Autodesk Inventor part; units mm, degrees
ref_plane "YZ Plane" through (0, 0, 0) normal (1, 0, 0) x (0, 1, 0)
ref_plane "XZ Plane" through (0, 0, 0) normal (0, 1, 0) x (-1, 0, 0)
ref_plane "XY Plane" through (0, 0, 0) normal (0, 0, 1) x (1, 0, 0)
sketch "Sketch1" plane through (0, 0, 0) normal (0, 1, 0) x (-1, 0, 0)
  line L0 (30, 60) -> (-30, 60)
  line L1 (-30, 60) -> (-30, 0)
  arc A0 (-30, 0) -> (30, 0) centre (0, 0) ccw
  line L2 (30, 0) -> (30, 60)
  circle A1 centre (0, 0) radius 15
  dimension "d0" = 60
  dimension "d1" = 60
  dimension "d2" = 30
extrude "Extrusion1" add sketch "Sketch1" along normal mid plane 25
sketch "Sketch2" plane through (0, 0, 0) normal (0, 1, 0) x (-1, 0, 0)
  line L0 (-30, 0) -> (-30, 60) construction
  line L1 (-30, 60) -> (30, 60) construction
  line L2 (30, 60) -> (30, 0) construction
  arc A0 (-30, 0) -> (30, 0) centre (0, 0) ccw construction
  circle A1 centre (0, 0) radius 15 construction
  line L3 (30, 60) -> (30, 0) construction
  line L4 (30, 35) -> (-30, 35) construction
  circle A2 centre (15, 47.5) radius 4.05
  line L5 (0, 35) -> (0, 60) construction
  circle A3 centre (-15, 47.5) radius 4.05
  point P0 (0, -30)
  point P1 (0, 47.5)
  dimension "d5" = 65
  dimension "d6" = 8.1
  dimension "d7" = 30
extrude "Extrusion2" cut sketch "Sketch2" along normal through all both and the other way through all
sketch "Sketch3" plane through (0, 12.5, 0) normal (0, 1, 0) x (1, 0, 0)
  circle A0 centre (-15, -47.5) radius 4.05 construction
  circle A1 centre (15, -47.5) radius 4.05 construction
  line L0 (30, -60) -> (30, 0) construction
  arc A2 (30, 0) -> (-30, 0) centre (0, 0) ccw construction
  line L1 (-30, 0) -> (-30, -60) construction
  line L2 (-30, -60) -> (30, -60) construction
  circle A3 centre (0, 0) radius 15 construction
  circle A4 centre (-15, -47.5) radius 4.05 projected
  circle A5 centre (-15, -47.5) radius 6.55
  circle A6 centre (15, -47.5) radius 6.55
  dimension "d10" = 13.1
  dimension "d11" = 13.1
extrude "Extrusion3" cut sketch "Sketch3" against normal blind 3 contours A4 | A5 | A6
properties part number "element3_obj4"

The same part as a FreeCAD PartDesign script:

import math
import FreeCAD as App
import Part
import Sketcher
from FreeCAD import Vector

doc = App.newDocument("Part")
body = doc.addObject("PartDesign::Body", "Body")

sketch1 = body.newObject("Sketcher::SketchObject", "Sketch")
sketch1.AttachmentSupport = (doc.getObject("XZ_Plane"), [""])
sketch1.MapMode = "FlatFace"
sketch1.addGeometry(Part.LineSegment(Vector(-30, 0, 0), Vector(-30, 60, 0)), False)
sketch1.addGeometry(Part.LineSegment(Vector(-30, 60, 0), Vector(30, 60, 0)), False)
sketch1.addGeometry(Part.LineSegment(Vector(30, 60, 0), Vector(30, 0, 0)), False)
sketch1.addGeometry(Part.ArcOfCircle(Part.Circle(Vector(0, 0, 0), Vector(0, 0, 1), 30), math.radians(180), math.radians(360)), False)
sketch1.addGeometry(Part.Circle(Vector(0, 0, 0), Vector(0, 0, 1), 15), False)
sketch1.addConstraint(Sketcher.Constraint("Coincident", 0, 2, 1, 1))
sketch1.addConstraint(Sketcher.Constraint("Coincident", 1, 2, 2, 1))
sketch1.addConstraint(Sketcher.Constraint("Tangent", 2, 2, 3, 2))
sketch1.addConstraint(Sketcher.Constraint("Tangent", 3, 1, 0, 1))
sketch1.addConstraint(Sketcher.Constraint("Vertical", 0))
sketch1.addConstraint(Sketcher.Constraint("Horizontal", 1))
sketch1.addConstraint(Sketcher.Constraint("Vertical", 2))
sketch1.addConstraint(Sketcher.Constraint("Coincident", 3, 3, -1, 1))
sketch1.addConstraint(Sketcher.Constraint("Coincident", 4, 3, -1, 1))
sketch1.addConstraint(Sketcher.Constraint("Equal", 1, 0))
sketch1.addConstraint(Sketcher.Constraint("Diameter", 4, 30.0))
sketch1.addConstraint(Sketcher.Constraint("Radius", 3, 30.0))
pad1 = body.newObject("PartDesign::Pad", "Pad")
pad1.Profile = sketch1
pad1.Length = 25
pad1.Midplane = True

sketch2 = body.newObject("Sketcher::SketchObject", "Sketch001")
sketch2.AttachmentSupport = (doc.getObject("XZ_Plane"), [""])
sketch2.MapMode = "FlatFace"
sketch2.addGeometry(Part.Circle(Vector(-15, 47.5, 0), Vector(0, 0, 1), 4.05), False)
sketch2.addGeometry(Part.Circle(Vector(15, 47.5, 0), Vector(0, 0, 1), 4.05), False)
sketch2.addConstraint(Sketcher.Constraint("Equal", 0, 1))
sketch2.addConstraint(Sketcher.Constraint("Symmetric", 0, 3, 1, 3, -2))
sketch2.addConstraint(Sketcher.Constraint("Diameter", 0, 8.1))
sketch2.addConstraint(Sketcher.Constraint("DistanceX", 0, 3, 1, 3, 30.0))
sketch2.addConstraint(Sketcher.Constraint("DistanceY", -1, 1, 0, 3, 47.5))
pocket1 = body.newObject("PartDesign::Pocket", "Pocket")
pocket1.Profile = sketch2
pocket1.Type = "ThroughAll"
pocket1.Midplane = True

sketch3 = body.newObject("Sketcher::SketchObject", "Sketch002")
sketch3.AttachmentSupport = (doc.getObject("XZ_Plane"), [""])
sketch3.MapMode = "FlatFace"
sketch3.AttachmentOffset = App.Placement(Vector(0, 0, -12.5), App.Rotation())
sketch3.addGeometry(Part.Circle(Vector(-15, 47.5, 0), Vector(0, 0, 1), 6.55), False)
sketch3.addGeometry(Part.Circle(Vector(15, 47.5, 0), Vector(0, 0, 1), 6.55), False)
sketch3.addConstraint(Sketcher.Constraint("Equal", 0, 1))
sketch3.addConstraint(Sketcher.Constraint("Symmetric", 0, 3, 1, 3, -2))
sketch3.addConstraint(Sketcher.Constraint("Diameter", 0, 13.1))
sketch3.addConstraint(Sketcher.Constraint("DistanceX", 0, 3, -1, 1, 15.0))
sketch3.addConstraint(Sketcher.Constraint("DistanceY", -1, 1, 0, 3, 47.5))
pocket2 = body.newObject("PartDesign::Pocket", "Pocket001")
pocket2.Profile = sketch3
pocket2.Length = 3
pocket2.Reversed = True

doc.recompute()
